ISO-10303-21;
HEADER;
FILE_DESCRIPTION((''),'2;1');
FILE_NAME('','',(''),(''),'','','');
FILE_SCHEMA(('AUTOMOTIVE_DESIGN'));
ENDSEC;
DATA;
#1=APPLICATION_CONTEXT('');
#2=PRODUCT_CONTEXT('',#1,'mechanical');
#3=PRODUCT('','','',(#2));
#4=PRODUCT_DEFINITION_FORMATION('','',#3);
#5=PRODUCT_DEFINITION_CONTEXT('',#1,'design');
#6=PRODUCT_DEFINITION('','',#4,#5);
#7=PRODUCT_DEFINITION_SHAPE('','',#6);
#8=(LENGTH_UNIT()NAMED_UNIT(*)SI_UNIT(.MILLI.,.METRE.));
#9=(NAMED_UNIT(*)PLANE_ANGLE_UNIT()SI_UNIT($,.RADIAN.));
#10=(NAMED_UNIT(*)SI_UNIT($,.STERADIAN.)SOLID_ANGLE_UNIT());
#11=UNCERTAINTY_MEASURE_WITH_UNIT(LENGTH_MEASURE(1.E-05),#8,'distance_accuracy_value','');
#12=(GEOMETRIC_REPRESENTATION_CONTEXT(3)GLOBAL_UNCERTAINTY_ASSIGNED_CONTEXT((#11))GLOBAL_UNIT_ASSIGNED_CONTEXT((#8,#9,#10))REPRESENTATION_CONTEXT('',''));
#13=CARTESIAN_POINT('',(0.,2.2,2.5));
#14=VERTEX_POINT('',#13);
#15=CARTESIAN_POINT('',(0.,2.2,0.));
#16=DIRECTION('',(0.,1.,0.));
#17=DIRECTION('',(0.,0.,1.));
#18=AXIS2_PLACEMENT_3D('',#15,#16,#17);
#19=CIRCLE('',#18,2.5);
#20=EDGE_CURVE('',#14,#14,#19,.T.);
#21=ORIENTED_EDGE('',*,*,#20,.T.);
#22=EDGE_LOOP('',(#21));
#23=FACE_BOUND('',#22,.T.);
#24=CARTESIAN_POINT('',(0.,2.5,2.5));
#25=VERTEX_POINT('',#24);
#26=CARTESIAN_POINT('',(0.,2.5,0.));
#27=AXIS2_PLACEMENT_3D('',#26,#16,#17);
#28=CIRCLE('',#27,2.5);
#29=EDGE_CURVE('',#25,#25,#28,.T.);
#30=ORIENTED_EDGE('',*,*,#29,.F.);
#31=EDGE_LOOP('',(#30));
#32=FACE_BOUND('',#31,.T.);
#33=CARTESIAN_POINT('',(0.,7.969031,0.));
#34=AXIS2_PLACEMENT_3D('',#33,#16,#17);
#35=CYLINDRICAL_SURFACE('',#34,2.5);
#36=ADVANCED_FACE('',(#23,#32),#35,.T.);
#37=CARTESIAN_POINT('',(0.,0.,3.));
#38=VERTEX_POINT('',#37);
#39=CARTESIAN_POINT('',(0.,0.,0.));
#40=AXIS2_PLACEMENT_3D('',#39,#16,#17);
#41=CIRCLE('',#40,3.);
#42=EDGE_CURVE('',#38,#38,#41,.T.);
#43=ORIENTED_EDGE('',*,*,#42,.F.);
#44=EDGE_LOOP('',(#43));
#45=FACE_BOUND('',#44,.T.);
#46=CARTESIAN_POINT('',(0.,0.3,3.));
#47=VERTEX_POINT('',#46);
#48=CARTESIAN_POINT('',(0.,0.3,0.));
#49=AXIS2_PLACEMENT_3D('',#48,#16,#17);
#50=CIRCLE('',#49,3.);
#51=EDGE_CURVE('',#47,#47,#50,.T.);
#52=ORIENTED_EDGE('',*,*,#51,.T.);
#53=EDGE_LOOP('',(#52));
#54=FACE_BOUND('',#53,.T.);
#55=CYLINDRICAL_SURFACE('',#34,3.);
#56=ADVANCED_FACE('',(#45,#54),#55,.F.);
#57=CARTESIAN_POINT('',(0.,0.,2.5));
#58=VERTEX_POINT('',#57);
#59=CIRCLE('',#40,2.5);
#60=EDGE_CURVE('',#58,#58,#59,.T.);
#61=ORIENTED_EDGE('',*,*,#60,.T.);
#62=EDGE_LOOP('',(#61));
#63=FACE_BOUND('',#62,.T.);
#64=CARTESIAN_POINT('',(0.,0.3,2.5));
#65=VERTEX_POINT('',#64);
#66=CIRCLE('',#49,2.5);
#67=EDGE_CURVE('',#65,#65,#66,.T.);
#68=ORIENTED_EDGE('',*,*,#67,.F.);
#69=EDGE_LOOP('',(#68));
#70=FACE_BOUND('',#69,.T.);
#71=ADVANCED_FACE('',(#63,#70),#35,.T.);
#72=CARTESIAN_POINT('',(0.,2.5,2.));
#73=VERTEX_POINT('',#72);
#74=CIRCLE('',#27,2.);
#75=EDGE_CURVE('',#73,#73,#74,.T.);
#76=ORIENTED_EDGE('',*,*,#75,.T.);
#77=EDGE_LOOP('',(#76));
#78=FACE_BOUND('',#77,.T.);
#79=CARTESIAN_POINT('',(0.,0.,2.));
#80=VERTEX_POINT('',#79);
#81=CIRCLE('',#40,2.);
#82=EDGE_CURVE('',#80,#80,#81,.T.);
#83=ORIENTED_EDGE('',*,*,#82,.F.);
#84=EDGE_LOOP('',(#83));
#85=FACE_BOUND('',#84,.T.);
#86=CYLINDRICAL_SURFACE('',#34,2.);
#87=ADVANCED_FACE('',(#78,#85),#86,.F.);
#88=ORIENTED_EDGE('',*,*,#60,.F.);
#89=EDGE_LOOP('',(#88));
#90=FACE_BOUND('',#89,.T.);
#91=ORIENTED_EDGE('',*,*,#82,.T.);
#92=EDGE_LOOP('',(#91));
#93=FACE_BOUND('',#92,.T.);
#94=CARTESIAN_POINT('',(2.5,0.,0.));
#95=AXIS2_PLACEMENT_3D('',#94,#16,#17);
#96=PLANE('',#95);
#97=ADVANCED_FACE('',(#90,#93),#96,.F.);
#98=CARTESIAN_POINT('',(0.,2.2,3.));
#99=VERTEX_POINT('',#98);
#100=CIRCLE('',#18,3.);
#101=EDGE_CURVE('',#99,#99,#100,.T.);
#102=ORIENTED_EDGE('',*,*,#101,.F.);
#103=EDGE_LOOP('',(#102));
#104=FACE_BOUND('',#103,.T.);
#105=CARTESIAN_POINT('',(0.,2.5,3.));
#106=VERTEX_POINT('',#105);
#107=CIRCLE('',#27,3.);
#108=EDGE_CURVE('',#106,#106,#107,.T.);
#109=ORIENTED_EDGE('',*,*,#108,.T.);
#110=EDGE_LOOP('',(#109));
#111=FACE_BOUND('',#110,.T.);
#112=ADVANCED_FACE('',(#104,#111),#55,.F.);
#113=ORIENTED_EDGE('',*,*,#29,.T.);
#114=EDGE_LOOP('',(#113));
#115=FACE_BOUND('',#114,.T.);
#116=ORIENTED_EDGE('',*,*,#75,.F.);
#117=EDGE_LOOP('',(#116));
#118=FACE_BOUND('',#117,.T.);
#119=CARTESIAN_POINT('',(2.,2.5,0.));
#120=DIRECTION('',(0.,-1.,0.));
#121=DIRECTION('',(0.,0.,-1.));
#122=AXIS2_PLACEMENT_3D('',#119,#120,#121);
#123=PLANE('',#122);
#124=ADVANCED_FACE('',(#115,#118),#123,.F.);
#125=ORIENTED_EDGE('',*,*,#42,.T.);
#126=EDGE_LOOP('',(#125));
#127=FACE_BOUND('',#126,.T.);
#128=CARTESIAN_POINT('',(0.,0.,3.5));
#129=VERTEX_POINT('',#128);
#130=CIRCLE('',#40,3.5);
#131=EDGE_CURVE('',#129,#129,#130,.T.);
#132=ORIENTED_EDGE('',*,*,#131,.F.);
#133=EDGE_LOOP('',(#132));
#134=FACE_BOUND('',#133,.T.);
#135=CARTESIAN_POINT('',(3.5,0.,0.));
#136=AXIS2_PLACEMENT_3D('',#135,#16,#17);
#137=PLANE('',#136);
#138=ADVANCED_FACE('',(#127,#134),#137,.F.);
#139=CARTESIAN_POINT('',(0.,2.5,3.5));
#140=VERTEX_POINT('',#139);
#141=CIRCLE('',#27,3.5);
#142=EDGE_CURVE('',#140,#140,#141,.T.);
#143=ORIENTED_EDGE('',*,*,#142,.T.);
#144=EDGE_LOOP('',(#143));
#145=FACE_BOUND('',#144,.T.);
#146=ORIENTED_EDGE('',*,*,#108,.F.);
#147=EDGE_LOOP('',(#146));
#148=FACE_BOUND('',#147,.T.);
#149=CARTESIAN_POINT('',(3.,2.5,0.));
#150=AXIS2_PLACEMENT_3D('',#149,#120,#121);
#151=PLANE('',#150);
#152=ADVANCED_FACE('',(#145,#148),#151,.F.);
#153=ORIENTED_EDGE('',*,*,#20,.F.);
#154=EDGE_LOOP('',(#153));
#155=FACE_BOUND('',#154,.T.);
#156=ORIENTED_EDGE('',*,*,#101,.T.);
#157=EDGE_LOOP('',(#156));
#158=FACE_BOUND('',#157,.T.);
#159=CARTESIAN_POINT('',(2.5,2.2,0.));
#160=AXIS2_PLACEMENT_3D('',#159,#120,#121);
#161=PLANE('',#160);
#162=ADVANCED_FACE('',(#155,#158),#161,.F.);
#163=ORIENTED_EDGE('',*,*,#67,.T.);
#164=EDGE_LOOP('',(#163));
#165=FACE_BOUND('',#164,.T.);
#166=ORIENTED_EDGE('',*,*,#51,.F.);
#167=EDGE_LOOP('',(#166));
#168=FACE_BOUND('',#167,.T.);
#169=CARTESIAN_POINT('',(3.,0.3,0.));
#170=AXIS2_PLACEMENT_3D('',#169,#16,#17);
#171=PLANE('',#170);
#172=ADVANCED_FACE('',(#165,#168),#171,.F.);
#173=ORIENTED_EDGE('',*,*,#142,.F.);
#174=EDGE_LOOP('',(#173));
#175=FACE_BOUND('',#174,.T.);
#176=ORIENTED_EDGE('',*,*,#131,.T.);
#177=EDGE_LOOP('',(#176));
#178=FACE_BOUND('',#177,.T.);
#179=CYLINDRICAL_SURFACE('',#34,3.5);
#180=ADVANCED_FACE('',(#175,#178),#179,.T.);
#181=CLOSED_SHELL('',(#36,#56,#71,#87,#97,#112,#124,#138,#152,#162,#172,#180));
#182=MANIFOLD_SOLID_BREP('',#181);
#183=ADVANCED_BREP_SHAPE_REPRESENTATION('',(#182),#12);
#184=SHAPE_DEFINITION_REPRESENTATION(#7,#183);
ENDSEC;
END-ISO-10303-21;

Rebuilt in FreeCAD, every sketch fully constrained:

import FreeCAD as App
import Part
import Sketcher
Q = App.Units.Quantity


def add_polygon(sketch, points):
    """Adds a closed chain of lines whose ends are joined by coincident constraints."""
    first, n = sketch.GeometryCount, len(points)
    for a, b in zip(points, points[1:] + points[:1]):
        sketch.addGeometry(Part.LineSegment(App.Vector(*a, 0), App.Vector(*b, 0)), False)
    for i in range(n):
        sketch.addConstraint(Sketcher.Constraint("Coincident", first + i, 2, first + (i + 1) % n, 1))

doc = App.newDocument("Part")
params = doc.addObject("Spreadsheet::Sheet", "Params")
for row, (alias, value) in enumerate([
    ("sketch1_width", "0.5 mm"),
    ("sketch1_height", "2.5 mm"),
    ("sketch1_height2", "0.3 mm"),
    ("revolution_angle", "360 deg"),
], start=1):
    params.set(f"A{row}", alias)
    params.set(f"B{row}", "=" + value)
    params.setAlias(f"B{row}", alias)

body = doc.addObject("PartDesign::Body", "Body")

# Sketch on XY plane
sketch1 = body.newObject("Sketcher::SketchObject", "Sketch")
sketch1.AttachmentSupport = (doc.getObject("XY_Plane"), [""])
sketch1.MapMode = "FlatFace"
add_polygon(sketch1, [(2, 2.5), (2, 0), (2.5, 0), (2.5, 0.3), (3, 0.3), (3, 0), (3.5, 0), (3.5, 2.5), (3, 2.5), (3, 2.2), (2.5, 2.2), (2.5, 2.5)])  # lines 0-11
sketch1.addConstraint([
    Sketcher.Constraint("Vertical", 0),
    Sketcher.Constraint("Horizontal", 1),
    Sketcher.Constraint("Vertical", 2),
    Sketcher.Constraint("Horizontal", 3),
    Sketcher.Constraint("Vertical", 4),
    Sketcher.Constraint("Horizontal", 5),
    Sketcher.Constraint("Vertical", 6),
    Sketcher.Constraint("Horizontal", 7),
    Sketcher.Constraint("Vertical", 8),
    Sketcher.Constraint("Horizontal", 9),
    Sketcher.Constraint("Vertical", 10),
    Sketcher.Constraint("Horizontal", 11),
    Sketcher.Constraint("PointOnObject", 0, 2, -1),
    Sketcher.Constraint("PointOnObject", 4, 2, -1),
    Sketcher.Constraint("Horizontal", 7, 2, 10, 2),
    Sketcher.Constraint("Vertical", 4, 2, 7, 2),
    Sketcher.Constraint("Vertical", 2, 2, 9, 2),
    Sketcher.Constraint("Equal", 1, 3),
    Sketcher.Constraint("Equal", 3, 5),
    Sketcher.Constraint("Equal", 4, 8),
    Sketcher.Constraint("DistanceX", 1, 1, 1, 2, Q("0.5 mm")),
    Sketcher.Constraint("DistanceY", 0, 2, 0, 1, Q("2.5 mm")),
    Sketcher.Constraint("DistanceY", 2, 1, 2, 2, Q("0.3 mm")),
    Sketcher.Constraint("DistanceX", -1, 1, 0, 2, Q("2 mm")),
])
sketch1.setExpression("Constraints[32]", "Params.sketch1_width")
sketch1.setExpression("Constraints[33]", "Params.sketch1_height")
sketch1.setExpression("Constraints[34]", "Params.sketch1_height2")
revolution = body.newObject("PartDesign::Revolution", "Revolution")
revolution.Profile = sketch1
revolution.ReferenceAxis = (sketch1, ["V_Axis"])
revolution.setExpression("Angle", "Params.revolution_angle")

doc.recompute()
